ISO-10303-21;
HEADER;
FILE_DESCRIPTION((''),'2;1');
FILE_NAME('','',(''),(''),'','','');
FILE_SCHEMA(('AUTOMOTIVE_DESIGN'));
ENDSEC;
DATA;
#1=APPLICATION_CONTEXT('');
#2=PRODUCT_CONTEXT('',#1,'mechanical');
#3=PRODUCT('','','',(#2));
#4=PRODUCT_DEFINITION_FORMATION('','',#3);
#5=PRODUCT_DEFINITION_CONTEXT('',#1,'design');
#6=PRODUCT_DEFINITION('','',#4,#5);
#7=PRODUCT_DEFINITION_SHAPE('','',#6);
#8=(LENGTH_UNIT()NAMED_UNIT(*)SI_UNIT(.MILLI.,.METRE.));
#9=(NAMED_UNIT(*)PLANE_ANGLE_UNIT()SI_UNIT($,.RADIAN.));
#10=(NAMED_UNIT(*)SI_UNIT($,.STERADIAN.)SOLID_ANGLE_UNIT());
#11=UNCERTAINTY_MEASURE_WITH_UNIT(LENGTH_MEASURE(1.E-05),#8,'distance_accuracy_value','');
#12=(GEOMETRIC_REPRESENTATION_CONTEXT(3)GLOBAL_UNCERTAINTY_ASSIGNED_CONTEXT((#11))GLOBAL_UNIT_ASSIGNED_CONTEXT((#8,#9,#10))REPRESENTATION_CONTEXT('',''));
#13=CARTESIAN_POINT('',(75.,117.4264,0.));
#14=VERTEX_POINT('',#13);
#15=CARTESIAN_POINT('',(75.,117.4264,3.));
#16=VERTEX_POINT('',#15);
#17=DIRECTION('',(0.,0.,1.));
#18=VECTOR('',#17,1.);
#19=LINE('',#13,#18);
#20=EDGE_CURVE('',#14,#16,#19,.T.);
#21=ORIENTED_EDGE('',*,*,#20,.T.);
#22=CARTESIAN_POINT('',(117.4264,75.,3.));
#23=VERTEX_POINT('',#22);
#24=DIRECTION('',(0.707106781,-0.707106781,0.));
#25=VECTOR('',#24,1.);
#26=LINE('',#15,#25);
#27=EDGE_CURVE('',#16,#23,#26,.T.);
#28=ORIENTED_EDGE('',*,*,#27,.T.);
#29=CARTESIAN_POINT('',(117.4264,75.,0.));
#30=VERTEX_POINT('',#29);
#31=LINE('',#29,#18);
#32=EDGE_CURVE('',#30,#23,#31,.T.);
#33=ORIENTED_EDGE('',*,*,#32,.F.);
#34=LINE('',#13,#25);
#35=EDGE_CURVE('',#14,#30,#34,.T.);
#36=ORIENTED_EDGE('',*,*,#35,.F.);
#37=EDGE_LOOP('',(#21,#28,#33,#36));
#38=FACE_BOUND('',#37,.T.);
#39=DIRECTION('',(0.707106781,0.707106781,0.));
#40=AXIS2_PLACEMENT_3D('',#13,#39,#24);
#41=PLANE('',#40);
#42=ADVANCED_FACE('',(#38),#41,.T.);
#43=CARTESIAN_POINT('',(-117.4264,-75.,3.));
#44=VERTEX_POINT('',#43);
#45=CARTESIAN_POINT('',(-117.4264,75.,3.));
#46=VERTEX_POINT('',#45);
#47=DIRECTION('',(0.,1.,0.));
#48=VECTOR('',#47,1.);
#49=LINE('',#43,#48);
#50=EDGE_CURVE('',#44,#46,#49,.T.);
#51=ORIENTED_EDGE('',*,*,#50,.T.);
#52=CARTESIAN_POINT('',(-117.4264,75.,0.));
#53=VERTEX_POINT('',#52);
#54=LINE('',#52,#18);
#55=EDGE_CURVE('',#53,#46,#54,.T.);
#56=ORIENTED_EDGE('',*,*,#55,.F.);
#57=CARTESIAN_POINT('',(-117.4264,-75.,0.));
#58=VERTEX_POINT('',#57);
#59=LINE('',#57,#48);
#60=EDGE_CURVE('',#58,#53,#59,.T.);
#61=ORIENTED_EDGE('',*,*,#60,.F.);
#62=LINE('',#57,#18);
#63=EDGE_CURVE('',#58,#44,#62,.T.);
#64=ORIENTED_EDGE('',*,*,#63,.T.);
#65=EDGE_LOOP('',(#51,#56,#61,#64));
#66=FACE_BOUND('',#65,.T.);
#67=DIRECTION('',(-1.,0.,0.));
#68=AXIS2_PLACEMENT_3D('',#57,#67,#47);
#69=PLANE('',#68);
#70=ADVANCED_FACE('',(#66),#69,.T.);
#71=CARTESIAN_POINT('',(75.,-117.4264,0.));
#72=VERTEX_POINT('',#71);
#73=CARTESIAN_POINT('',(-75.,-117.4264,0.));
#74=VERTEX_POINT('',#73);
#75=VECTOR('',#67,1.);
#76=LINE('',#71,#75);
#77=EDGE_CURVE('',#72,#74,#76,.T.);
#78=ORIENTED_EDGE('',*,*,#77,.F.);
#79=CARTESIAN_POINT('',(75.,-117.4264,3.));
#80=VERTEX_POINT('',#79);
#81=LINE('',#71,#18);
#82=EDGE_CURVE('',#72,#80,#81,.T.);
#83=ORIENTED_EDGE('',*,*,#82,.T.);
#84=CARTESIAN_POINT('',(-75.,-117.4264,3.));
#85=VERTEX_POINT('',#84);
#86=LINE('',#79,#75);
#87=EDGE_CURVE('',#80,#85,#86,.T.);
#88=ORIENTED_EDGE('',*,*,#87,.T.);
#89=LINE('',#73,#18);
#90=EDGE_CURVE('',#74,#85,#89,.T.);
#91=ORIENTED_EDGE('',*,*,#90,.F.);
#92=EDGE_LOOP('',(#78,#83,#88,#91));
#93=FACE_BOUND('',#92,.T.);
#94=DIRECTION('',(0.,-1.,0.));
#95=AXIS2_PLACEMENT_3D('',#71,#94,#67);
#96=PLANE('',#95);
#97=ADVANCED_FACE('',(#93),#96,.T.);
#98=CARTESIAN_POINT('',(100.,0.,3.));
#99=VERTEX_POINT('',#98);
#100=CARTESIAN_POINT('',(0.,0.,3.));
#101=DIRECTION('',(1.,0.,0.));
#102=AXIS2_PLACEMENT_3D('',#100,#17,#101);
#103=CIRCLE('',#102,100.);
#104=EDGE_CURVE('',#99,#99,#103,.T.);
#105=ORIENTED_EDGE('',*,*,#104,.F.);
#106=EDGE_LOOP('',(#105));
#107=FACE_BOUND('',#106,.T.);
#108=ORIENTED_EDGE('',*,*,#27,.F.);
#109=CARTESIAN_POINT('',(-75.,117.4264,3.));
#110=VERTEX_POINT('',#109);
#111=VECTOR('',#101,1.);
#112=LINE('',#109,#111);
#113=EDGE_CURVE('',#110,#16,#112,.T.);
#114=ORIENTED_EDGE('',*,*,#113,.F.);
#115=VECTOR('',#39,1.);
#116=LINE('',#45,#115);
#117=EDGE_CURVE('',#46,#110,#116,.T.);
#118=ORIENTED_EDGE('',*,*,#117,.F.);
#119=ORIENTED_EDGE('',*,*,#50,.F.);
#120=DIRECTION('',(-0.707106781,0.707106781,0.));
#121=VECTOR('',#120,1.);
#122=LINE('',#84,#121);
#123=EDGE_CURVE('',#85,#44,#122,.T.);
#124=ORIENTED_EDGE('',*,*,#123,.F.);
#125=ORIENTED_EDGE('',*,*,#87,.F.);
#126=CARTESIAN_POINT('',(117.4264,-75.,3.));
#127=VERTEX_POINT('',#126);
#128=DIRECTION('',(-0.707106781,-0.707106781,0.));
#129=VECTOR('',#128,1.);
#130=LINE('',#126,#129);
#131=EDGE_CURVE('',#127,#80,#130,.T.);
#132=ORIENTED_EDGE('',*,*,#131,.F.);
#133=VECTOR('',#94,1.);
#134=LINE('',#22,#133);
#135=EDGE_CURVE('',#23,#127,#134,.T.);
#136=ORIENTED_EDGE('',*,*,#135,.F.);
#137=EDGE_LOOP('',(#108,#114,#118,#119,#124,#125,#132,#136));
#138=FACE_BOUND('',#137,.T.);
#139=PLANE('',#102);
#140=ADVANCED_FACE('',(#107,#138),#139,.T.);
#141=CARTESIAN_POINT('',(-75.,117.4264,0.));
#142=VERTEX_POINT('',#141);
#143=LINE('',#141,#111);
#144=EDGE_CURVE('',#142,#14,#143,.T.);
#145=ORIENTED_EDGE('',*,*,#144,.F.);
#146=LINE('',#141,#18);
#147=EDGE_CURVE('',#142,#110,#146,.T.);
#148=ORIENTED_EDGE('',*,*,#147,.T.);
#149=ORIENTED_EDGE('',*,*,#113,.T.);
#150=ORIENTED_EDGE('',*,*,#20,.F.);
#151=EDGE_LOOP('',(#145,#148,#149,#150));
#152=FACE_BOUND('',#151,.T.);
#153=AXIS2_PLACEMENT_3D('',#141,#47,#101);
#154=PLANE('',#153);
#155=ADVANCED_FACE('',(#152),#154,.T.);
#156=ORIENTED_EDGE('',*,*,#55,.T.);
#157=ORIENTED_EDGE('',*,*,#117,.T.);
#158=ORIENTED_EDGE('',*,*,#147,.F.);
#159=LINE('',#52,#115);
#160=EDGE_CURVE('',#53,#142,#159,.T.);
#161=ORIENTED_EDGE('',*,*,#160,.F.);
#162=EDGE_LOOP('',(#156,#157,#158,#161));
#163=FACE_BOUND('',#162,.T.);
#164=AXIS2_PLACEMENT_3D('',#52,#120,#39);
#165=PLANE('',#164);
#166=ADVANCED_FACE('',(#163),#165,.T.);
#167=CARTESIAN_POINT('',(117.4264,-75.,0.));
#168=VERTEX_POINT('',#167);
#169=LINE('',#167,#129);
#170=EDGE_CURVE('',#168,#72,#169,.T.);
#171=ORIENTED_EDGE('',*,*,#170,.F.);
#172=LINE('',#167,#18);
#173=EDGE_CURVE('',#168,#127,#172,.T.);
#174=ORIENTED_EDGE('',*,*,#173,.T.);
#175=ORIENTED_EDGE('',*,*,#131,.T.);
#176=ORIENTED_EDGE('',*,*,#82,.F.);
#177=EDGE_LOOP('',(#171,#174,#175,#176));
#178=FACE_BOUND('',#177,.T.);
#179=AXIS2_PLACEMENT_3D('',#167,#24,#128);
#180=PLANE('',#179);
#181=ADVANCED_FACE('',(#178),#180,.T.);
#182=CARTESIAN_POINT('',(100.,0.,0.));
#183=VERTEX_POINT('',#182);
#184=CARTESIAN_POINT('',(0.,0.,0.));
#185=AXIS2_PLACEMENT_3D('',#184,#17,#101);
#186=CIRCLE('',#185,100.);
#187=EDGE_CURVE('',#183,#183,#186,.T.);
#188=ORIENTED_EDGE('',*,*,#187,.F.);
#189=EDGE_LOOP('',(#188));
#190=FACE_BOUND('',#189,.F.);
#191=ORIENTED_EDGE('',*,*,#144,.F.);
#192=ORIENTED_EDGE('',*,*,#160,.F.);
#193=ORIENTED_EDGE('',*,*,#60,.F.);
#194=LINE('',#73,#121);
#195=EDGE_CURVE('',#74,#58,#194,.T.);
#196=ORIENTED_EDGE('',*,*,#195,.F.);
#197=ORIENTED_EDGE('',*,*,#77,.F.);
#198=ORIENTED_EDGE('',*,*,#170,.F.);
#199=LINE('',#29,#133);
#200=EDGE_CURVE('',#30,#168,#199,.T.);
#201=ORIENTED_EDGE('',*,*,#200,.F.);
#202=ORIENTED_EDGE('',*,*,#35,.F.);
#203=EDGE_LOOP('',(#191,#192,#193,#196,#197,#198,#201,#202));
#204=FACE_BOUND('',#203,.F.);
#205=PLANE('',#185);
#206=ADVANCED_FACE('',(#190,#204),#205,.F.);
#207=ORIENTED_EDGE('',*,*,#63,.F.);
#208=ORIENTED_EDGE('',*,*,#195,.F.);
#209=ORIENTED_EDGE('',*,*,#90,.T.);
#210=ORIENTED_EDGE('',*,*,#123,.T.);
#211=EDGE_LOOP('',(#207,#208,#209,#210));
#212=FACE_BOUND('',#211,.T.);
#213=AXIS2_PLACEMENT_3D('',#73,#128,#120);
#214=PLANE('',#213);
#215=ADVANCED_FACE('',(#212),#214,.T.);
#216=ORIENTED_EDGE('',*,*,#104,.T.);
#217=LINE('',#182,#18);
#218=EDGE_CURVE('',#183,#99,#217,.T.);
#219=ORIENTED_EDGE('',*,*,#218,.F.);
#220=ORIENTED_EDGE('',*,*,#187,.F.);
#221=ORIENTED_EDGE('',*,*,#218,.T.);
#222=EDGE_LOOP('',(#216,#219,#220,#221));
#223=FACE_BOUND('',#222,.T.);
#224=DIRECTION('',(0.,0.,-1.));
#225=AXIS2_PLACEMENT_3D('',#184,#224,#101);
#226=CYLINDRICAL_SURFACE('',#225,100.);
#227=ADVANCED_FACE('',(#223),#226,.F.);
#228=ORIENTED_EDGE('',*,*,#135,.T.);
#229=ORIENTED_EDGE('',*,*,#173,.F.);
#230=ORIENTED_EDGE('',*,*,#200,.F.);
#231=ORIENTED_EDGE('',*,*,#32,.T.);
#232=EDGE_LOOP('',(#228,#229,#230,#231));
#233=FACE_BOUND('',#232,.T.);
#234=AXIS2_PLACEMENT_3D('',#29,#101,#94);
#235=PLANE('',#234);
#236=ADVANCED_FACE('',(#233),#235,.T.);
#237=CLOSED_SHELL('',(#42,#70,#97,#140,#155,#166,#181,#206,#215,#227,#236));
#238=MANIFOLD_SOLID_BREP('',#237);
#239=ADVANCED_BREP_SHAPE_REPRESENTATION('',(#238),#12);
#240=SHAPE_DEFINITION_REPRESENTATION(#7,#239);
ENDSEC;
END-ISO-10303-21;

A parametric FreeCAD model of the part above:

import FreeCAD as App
import Part
import Sketcher
Q = App.Units.Quantity

doc = App.newDocument("Part")
body = doc.addObject("PartDesign::Body", "Body")

# Sketch on XY plane
sketch1 = doc.addObject("Sketcher::SketchObject", "Sketch")
body.addObject(sketch1)
sketch1.AttachmentSupport = (doc.XY_Plane, [""])
sketch1.MapMode = "FlatFace"
sketch1.addGeometry([
    Part.LineSegment(App.Vector(-117.4264, 75, 0), App.Vector(-117.4264, -75, 0)),  # 0
    Part.LineSegment(App.Vector(-117.4264, -75, 0), App.Vector(-75, -117.4264, 0)),  # 1
    Part.LineSegment(App.Vector(-75, -117.4264, 0), App.Vector(75, -117.4264, 0)),  # 2
    Part.LineSegment(App.Vector(75, -117.4264, 0), App.Vector(117.4264, -75, 0)),  # 3
    Part.LineSegment(App.Vector(117.4264, -75, 0), App.Vector(117.4264, 75, 0)),  # 4
    Part.LineSegment(App.Vector(117.4264, 75, 0), App.Vector(75, 117.4264, 0)),  # 5
    Part.LineSegment(App.Vector(75, 117.4264, 0), App.Vector(-75, 117.4264, 0)),  # 6
    Part.LineSegment(App.Vector(-75, 117.4264, 0), App.Vector(-117.4264, 75, 0)),  # 7
    Part.Circle(App.Vector(0, 0, 0), App.Vector(0, 0, 1), 100),  # 8
], False)
sketch1.addConstraint([
    Sketcher.Constraint("Coincident", 0, 2, 1, 1),
    Sketcher.Constraint("Coincident", 1, 2, 2, 1),
    Sketcher.Constraint("Coincident", 2, 2, 3, 1),
    Sketcher.Constraint("Coincident", 3, 2, 4, 1),
    Sketcher.Constraint("Coincident", 4, 2, 5, 1),
    Sketcher.Constraint("Coincident", 5, 2, 6, 1),
    Sketcher.Constraint("Coincident", 6, 2, 7, 1),
    Sketcher.Constraint("Coincident", 7, 2, 0, 1),
    Sketcher.Constraint("Vertical", 0),
    Sketcher.Constraint("Horizontal", 2),
    Sketcher.Constraint("Vertical", 4),
    Sketcher.Constraint("Horizontal", 6),
    Sketcher.Constraint("Coincident", 8, 3, -1, 1),
    Sketcher.Constraint("Symmetric", 0, 2, 4, 2, -1, 1),
    Sketcher.Constraint("Symmetric", 1, 2, 5, 2, -1, 1),
    Sketcher.Constraint("Perpendicular", 1, 3),
    Sketcher.Constraint("Perpendicular", 5, 7),
    Sketcher.Constraint("Horizontal", 0, 2, 3, 2),
    Sketcher.Constraint("Horizontal", 4, 2, 7, 2),
    Sketcher.Constraint("Vertical", 2, 2, 5, 2),
    Sketcher.Constraint("Equal", 6, 0),
    Sketcher.Constraint("Diameter", 8, Q("200 mm")),
    Sketcher.Constraint("DistanceX", 2, 1, 2, 2, Q("150 mm")),
    Sketcher.Constraint("Distance", 1, Q("60 mm")),
])
pad1 = doc.addObject("PartDesign::Pad", "Pad")
body.addObject(pad1)
pad1.Profile = sketch1
pad1.Length = 3

doc.recompute()
